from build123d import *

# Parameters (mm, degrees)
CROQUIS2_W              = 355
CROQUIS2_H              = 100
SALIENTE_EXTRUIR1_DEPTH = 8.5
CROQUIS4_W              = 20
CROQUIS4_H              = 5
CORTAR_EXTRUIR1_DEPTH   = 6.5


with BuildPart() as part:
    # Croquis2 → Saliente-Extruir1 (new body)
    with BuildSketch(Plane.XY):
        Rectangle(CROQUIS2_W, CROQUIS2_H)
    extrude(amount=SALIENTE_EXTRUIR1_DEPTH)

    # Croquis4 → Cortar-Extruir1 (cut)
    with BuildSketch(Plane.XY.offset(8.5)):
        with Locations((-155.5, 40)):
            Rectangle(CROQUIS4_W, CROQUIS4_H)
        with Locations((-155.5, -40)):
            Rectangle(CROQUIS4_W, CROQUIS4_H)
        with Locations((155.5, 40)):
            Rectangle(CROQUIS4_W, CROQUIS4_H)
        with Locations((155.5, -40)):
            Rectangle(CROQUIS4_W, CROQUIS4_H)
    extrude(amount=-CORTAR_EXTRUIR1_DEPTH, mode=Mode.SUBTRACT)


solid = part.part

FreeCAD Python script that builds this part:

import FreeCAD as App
import Part
import Sketcher

V = App.Vector


def add_polygon(sketch, points):
    """Adds a closed chain of lines whose ends are joined by coincident constraints."""
    first, n = sketch.GeometryCount, len(points)
    for a, b in zip(points, points[1:] + points[:1]):
        sketch.addGeometry(Part.LineSegment(App.Vector(*a, 0), App.Vector(*b, 0)), False)
    for i in range(n):
        sketch.addConstraint(Sketcher.Constraint("Coincident", first + i, 2, first + (i + 1) % n, 1))

doc = App.newDocument("Part")
body = doc.addObject("PartDesign::Body", "Body")

# Sketch on XY plane
sketch1 = body.newObject("Sketcher::SketchObject", "Sketch")
sketch1.AttachmentSupport = (doc.getObject("XY_Plane"), [""])
sketch1.MapMode = "FlatFace"
add_polygon(sketch1, [(-178, 50), (-178, -50), (178, -50), (178, 50)])  # lines 0-3
sketch1.addConstraint(Sketcher.Constraint("Vertical", 0))
sketch1.addConstraint(Sketcher.Constraint("Horizontal", 1))
sketch1.addConstraint(Sketcher.Constraint("Vertical", 2))
sketch1.addConstraint(Sketcher.Constraint("Horizontal", 3))
sketch1.addConstraint(Sketcher.Constraint("Symmetric", 0, 2, 2, 2, -1, 1))
sketch1.addConstraint(Sketcher.Constraint("DistanceX", 1, 1, 1, 2, 355.0))
sketch1.addConstraint(Sketcher.Constraint("DistanceY", 0, 2, 0, 1, 100.0))
pad1 = body.newObject("PartDesign::Pad", "Pad")
pad1.Profile = sketch1
pad1.Length = 8.5

# Sketch on XY plane
sketch2 = body.newObject("Sketcher::SketchObject", "Sketch001")
sketch2.AttachmentSupport = (doc.getObject("XY_Plane"), [""])
sketch2.MapMode = "FlatFace"
sketch2.AttachmentOffset = App.Placement(V(0, 0, 8.5), App.Rotation())
add_polygon(sketch2, [(-166, 42), (-166, 38), (-146, 38), (-146, 42)])  # lines 0-3
add_polygon(sketch2, [(-166, -38), (-166, -42), (-146, -42), (-146, -38)])  # lines 4-7
add_polygon(sketch2, [(146, 42), (146, 38), (166, 38), (166, 42)])  # lines 8-11
add_polygon(sketch2, [(146, -38), (146, -42), (166, -42), (166, -38)])  # lines 12-15
sketch2.addConstraint(Sketcher.Constraint("Vertical", 0))
sketch2.addConstraint(Sketcher.Constraint("Horizontal", 1))
sketch2.addConstraint(Sketcher.Constraint("Vertical", 2))
sketch2.addConstraint(Sketcher.Constraint("Horizontal", 3))
sketch2.addConstraint(Sketcher.Constraint("Vertical", 4))
sketch2.addConstraint(Sketcher.Constraint("Horizontal", 5))
sketch2.addConstraint(Sketcher.Constraint("Vertical", 6))
sketch2.addConstraint(Sketcher.Constraint("Horizontal", 7))
sketch2.addConstraint(Sketcher.Constraint("Vertical", 8))
sketch2.addConstraint(Sketcher.Constraint("Horizontal", 9))
sketch2.addConstraint(Sketcher.Constraint("Vertical", 10))
sketch2.addConstraint(Sketcher.Constraint("Horizontal", 11))
sketch2.addConstraint(Sketcher.Constraint("Vertical", 12))
sketch2.addConstraint(Sketcher.Constraint("Horizontal", 13))
sketch2.addConstraint(Sketcher.Constraint("Vertical", 14))
sketch2.addConstraint(Sketcher.Constraint("Horizontal", 15))
sketch2.addConstraint(Sketcher.Constraint("Symmetric", 6, 2, 8, 2, -1, 1))
sketch2.addConstraint(Sketcher.Constraint("Symmetric", 4, 2, 10, 2, -1, 1))
sketch2.addConstraint(Sketcher.Constraint("Symmetric", 2, 2, 12, 2, -1, 1))
sketch2.addConstraint(Sketcher.Constraint("Symmetric", 0, 2, 14, 2, -1, 1))
sketch2.addConstraint(Sketcher.Constraint("Symmetric", 1, 2, 8, 2, -2))
sketch2.addConstraint(Sketcher.Constraint("Symmetric", 3, 2, 10, 2, -2))
sketch2.addConstraint(Sketcher.Constraint("DistanceX", 1, 1, 1, 2, 20.0))
sketch2.addConstraint(Sketcher.Constraint("DistanceY", 0, 2, 0, 1, 5.0))
sketch2.addConstraint(Sketcher.Constraint("DistanceY", 4, 2, 0, 2, 80.0))
sketch2.addConstraint(Sketcher.Constraint("DistanceX", 1, 2, 8, 2, 291.0))
pocket1 = body.newObject("PartDesign::Pocket", "Pocket")
pocket1.Profile = sketch2
pocket1.Length = 6.5

doc.recompute()
